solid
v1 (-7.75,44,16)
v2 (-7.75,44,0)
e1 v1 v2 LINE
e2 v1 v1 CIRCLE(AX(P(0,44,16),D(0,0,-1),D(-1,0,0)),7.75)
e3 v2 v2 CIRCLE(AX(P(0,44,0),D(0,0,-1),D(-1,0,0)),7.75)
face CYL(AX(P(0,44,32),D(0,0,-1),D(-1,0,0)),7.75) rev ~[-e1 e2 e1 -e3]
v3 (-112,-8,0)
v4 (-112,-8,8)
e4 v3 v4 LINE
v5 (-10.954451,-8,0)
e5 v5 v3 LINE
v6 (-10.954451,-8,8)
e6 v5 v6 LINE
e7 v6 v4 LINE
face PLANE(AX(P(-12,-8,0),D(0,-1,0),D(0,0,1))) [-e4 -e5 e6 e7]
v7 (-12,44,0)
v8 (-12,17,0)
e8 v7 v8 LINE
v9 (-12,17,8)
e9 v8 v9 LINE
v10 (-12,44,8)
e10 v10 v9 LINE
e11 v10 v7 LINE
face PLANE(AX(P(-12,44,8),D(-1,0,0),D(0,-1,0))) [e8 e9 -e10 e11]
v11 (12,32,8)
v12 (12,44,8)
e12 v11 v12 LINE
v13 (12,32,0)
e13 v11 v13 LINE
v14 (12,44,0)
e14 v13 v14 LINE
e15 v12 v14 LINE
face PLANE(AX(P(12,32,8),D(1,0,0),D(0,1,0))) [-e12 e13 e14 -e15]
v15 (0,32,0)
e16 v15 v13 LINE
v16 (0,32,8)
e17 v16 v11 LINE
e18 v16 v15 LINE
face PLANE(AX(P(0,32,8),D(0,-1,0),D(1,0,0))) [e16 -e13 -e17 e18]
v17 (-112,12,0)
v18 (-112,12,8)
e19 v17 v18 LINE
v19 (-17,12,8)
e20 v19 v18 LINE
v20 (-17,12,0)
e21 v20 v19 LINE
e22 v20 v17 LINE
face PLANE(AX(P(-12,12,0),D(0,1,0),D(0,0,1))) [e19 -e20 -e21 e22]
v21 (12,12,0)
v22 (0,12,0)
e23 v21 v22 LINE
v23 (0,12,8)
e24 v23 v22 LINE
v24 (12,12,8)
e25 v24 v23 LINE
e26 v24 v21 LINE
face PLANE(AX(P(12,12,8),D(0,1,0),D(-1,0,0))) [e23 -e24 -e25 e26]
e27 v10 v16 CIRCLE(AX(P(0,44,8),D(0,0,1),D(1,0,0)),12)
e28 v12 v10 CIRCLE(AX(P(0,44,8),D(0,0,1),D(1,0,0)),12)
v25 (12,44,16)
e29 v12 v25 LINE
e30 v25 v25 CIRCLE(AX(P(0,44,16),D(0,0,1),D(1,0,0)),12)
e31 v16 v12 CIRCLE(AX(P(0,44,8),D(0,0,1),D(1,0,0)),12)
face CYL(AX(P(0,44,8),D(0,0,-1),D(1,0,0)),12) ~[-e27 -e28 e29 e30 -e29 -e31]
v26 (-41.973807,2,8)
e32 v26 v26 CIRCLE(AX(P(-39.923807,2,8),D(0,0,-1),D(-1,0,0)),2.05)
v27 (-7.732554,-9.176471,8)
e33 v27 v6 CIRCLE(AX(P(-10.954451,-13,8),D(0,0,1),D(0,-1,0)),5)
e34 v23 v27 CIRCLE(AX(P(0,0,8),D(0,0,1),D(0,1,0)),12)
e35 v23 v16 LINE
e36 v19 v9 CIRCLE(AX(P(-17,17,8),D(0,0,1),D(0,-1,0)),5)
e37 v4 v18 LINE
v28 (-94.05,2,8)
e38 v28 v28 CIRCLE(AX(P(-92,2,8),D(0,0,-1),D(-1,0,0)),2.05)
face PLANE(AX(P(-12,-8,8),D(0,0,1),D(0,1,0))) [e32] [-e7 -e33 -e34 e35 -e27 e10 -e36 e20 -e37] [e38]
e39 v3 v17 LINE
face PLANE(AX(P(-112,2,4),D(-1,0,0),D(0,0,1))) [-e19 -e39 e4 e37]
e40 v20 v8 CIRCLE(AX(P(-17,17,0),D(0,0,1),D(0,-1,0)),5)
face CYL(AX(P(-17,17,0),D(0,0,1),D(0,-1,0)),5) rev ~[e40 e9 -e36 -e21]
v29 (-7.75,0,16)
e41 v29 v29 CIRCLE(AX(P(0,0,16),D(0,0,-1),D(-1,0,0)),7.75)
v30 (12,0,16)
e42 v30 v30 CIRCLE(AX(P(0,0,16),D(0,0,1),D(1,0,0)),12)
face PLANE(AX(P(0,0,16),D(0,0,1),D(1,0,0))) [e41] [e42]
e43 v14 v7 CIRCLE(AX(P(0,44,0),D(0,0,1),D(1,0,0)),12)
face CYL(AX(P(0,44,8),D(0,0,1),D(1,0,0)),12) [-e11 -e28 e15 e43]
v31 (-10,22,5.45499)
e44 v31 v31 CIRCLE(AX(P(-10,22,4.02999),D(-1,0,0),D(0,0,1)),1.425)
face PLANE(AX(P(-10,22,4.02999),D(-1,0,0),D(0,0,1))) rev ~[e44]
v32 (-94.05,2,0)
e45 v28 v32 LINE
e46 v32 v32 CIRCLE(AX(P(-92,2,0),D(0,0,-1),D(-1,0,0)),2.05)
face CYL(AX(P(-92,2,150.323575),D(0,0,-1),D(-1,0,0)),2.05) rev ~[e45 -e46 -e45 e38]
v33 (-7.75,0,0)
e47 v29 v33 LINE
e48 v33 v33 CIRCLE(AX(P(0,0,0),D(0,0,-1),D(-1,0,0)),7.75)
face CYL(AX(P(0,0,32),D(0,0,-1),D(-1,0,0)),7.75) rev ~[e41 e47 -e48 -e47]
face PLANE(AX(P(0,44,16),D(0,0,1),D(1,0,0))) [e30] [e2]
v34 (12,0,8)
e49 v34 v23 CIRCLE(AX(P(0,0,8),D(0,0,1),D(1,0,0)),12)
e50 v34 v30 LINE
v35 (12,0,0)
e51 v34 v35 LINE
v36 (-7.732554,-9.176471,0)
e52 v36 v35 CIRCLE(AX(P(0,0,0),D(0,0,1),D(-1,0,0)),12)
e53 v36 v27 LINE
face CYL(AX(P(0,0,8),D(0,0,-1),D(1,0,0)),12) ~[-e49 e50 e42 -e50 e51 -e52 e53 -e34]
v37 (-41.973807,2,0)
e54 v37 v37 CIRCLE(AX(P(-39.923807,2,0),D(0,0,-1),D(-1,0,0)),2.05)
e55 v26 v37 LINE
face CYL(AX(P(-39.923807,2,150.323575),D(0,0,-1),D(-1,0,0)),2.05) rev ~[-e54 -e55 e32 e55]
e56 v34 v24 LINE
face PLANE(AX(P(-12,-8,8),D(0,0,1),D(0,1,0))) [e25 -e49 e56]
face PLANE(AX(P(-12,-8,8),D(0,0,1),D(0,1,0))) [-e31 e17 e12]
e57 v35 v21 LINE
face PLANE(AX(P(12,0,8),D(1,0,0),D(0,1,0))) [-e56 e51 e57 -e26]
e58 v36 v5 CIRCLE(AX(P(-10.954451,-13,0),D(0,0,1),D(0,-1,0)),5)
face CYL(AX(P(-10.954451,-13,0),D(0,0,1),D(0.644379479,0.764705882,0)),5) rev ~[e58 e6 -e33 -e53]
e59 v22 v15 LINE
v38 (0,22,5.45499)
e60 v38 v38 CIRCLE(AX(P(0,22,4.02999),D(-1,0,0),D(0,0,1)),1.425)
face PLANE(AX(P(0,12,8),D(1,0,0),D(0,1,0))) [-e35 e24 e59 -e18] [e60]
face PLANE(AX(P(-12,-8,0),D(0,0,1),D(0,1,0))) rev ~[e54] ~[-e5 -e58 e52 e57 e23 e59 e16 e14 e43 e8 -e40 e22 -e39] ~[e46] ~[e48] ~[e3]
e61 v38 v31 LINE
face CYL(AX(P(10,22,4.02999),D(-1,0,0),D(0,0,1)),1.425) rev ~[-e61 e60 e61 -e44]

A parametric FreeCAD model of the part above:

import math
import FreeCAD as App
import Part
import Sketcher

V = App.Vector


def edges_at(feature, points):
    """Names of the edges that pass closest to the given points."""
    edges = feature.Shape.Edges
    near = lambda p: min(range(len(edges)), key=lambda i: edges[i].distToShape(Part.Vertex(*p))[0])
    return sorted({f"Edge{near(p) + 1}" for p in points})

doc = App.newDocument("Part")
body = doc.addObject("PartDesign::Body", "Body")

# Sketch on XY plane
sketch1 = body.newObject("Sketcher::SketchObject", "Sketch")
sketch1.AttachmentSupport = (doc.getObject("XY_Plane"), [""])
sketch1.MapMode = "FlatFace"
sketch1.AttachmentOffset = App.Placement(V(0, 0, 8), App.Rotation())
sketch1.addGeometry(Part.LineSegment(V(-12, 44, 0), V(-12, 0, 0)), False)
sketch1.addGeometry(Part.ArcOfCircle(Part.Circle(V(0, 0, 0), V(0, 0, 1), 12), math.radians(180), math.radians(360)), False)
sketch1.addGeometry(Part.LineSegment(V(12, 0, 0), V(12, 12, 0)), False)
sketch1.addGeometry(Part.LineSegment(V(12, 12, 0), V(0, 12, 0)), False)
sketch1.addGeometry(Part.LineSegment(V(0, 12, 0), V(0, 32, 0)), False)
sketch1.addGeometry(Part.LineSegment(V(0, 32, 0), V(12, 32, 0)), False)
sketch1.addGeometry(Part.LineSegment(V(12, 32, 0), V(12, 44, 0)), False)
sketch1.addGeometry(Part.ArcOfCircle(Part.Circle(V(0, 44, 0), V(0, 0, 1), 12), math.radians(0), math.radians(180)), False)
sketch1.addConstraint(Sketcher.Constraint("Tangent", 0, 2, 1, 1))
sketch1.addConstraint(Sketcher.Constraint("Tangent", 1, 2, 2, 1))
sketch1.addConstraint(Sketcher.Constraint("Coincident", 2, 2, 3, 1))
sketch1.addConstraint(Sketcher.Constraint("Coincident", 3, 2, 4, 1))
sketch1.addConstraint(Sketcher.Constraint("Coincident", 4, 2, 5, 1))
sketch1.addConstraint(Sketcher.Constraint("Coincident", 5, 2, 6, 1))
sketch1.addConstraint(Sketcher.Constraint("Tangent", 6, 2, 7, 1))
sketch1.addConstraint(Sketcher.Constraint("Tangent", 7, 2, 0, 1))
sketch1.addConstraint(Sketcher.Constraint("Vertical", 0))
sketch1.addConstraint(Sketcher.Constraint("Vertical", 2))
sketch1.addConstraint(Sketcher.Constraint("Horizontal", 3))
sketch1.addConstraint(Sketcher.Constraint("Vertical", 4))
sketch1.addConstraint(Sketcher.Constraint("Horizontal", 5))
sketch1.addConstraint(Sketcher.Constraint("Vertical", 6))
sketch1.addConstraint(Sketcher.Constraint("Coincident", 1, 3, -1, 1))
sketch1.addConstraint(Sketcher.Constraint("Equal", 1, 7))
sketch1.addConstraint(Sketcher.Constraint("PointOnObject", 3, 2, -2))
sketch1.addConstraint(Sketcher.Constraint("Equal", 5, 2))
sketch1.addConstraint(Sketcher.Constraint("Equal", 2, 6))
sketch1.addConstraint(Sketcher.Constraint("Radius", 1, 12.0))
sketch1.addConstraint(Sketcher.Constraint("DistanceY", 0, 2, 0, 1, 44.0))
pad1 = body.newObject("PartDesign::Pad", "Pad")
pad1.Profile = sketch1
pad1.Length = 8
pad1.Reversed = True

# Sketch on YZ plane
sketch2 = body.newObject("Sketcher::SketchObject", "Sketch001")
sketch2.AttachmentSupport = (doc.getObject("YZ_Plane"), [""])
sketch2.MapMode = "FlatFace"
sketch2.AttachmentOffset = App.Placement(V(0, 0, -12), App.Rotation())
sketch2.addGeometry(Part.LineSegment(V(12, 0, 0), V(-8, 0, 0)), False)
sketch2.addGeometry(Part.LineSegment(V(-8, 0, 0), V(-8, 8, 0)), False)
sketch2.addGeometry(Part.LineSegment(V(-8, 8, 0), V(12, 8, 0)), False)
sketch2.addGeometry(Part.LineSegment(V(12, 8, 0), V(12, 0, 0)), False)
sketch2.addConstraint(Sketcher.Constraint("Coincident", 0, 2, 1, 1))
sketch2.addConstraint(Sketcher.Constraint("Coincident", 1, 2, 2, 1))
sketch2.addConstraint(Sketcher.Constraint("Coincident", 2, 2, 3, 1))
sketch2.addConstraint(Sketcher.Constraint("Coincident", 3, 2, 0, 1))
sketch2.addConstraint(Sketcher.Constraint("Horizontal", 0))
sketch2.addConstraint(Sketcher.Constraint("Vertical", 1))
sketch2.addConstraint(Sketcher.Constraint("Horizontal", 2))
sketch2.addConstraint(Sketcher.Constraint("Vertical", 3))
sketch2.addConstraint(Sketcher.Constraint("PointOnObject", 0, 2, -1))
sketch2.addConstraint(Sketcher.Constraint("DistanceX", 0, 2, 0, 1, 20.0))
sketch2.addConstraint(Sketcher.Constraint("DistanceY", 1, 1, 1, 2, 8.0))
sketch2.addConstraint(Sketcher.Constraint("DistanceX", 0, 2, -1, 1, 8.0))
pad2 = body.newObject("PartDesign::Pad", "Pad001")
pad2.Profile = sketch2
pad2.Type = "TwoLengths"
pad2.Length = 100
pad2.Length2 = 5
pad2.Reversed = True

# Sketch on XY plane
sketch3 = body.newObject("Sketcher::SketchObject", "Sketch002")
sketch3.AttachmentSupport = (doc.getObject("XY_Plane"), [""])
sketch3.MapMode = "FlatFace"
sketch3.AttachmentOffset = App.Placement(V(0, 0, 8), App.Rotation())
sketch3.addGeometry(Part.Circle(V(0, 44, 0), V(0, 0, 1), 12), False)
sketch3.addConstraint(Sketcher.Constraint("PointOnObject", 0, 3, -2))
sketch3.addConstraint(Sketcher.Constraint("Diameter", 0, 24.0))
sketch3.addConstraint(Sketcher.Constraint("DistanceY", -1, 1, 0, 3, 44.0))
pad3 = body.newObject("PartDesign::Pad", "Pad002")
pad3.Profile = sketch3
pad3.Length = 8

# Sketch on XY plane
sketch4 = body.newObject("Sketcher::SketchObject", "Sketch003")
sketch4.AttachmentSupport = (doc.getObject("XY_Plane"), [""])
sketch4.MapMode = "FlatFace"
sketch4.AttachmentOffset = App.Placement(V(0, 0, 8), App.Rotation())
sketch4.addGeometry(Part.Circle(V(0, 0, 0), V(0, 0, 1), 12), False)
sketch4.addConstraint(Sketcher.Constraint("Coincident", 0, 3, -1, 1))
sketch4.addConstraint(Sketcher.Constraint("Diameter", 0, 24.0))
pad4 = body.newObject("PartDesign::Pad", "Pad003")
pad4.Profile = sketch4
pad4.Length = 8

# Sketch on XY plane
sketch5 = body.newObject("Sketcher::SketchObject", "Sketch004")
sketch5.AttachmentSupport = (doc.getObject("XY_Plane"), [""])
sketch5.MapMode = "FlatFace"
sketch5.AttachmentOffset = App.Placement(V(0, 0, 8), App.Rotation())
sketch5.addGeometry(Part.Circle(V(-39.9, 2, 0), V(0, 0, 1), 2), False)
sketch5.addGeometry(Part.Circle(V(-92, 2, 0), V(0, 0, 1), 2), False)
sketch5.addConstraint(Sketcher.Constraint("Equal", 0, 1))
sketch5.addConstraint(Sketcher.Constraint("Horizontal", 0, 3, 1, 3))
sketch5.addConstraint(Sketcher.Constraint("Diameter", 0, 4.1))
sketch5.addConstraint(Sketcher.Constraint("DistanceY", -1, 1, 0, 3, 2.0))
sketch5.addConstraint(Sketcher.Constraint("DistanceX", 1, 3, -1, 1, 92.0))
sketch5.addConstraint(Sketcher.Constraint("DistanceX", 0, 3, -1, 1, 39.923807))
doc.recompute()
hole = body.newObject("PartDesign::Hole", "Hole")
hole.Profile = sketch5
hole.ThreadType = "None"
hole.Diameter = 4.1
hole.DepthType = "ThroughAll"

# Sketch on XY plane
sketch6 = body.newObject("Sketcher::SketchObject", "Sketch005")
sketch6.AttachmentSupport = (doc.getObject("XY_Plane"), [""])
sketch6.MapMode = "FlatFace"
sketch6.AttachmentOffset = App.Placement(V(0, 0, 16), App.Rotation())
sketch6.addGeometry(Part.Circle(V(0, 44, 0), V(0, 0, 1), 8), False)
sketch6.addGeometry(Part.Circle(V(0, 0, 0), V(0, 0, 1), 8), False)
sketch6.addConstraint(Sketcher.Constraint("Coincident", 1, 3, -1, 1))
sketch6.addConstraint(Sketcher.Constraint("Equal", 0, 1))
sketch6.addConstraint(Sketcher.Constraint("PointOnObject", 0, 3, -2))
sketch6.addConstraint(Sketcher.Constraint("Diameter", 0, 15.5))
sketch6.addConstraint(Sketcher.Constraint("DistanceY", -1, 1, 0, 3, 44.0))
doc.recompute()
hole2 = body.newObject("PartDesign::Hole", "Hole001")
hole2.Profile = sketch6
hole2.ThreadType = "None"
hole2.Diameter = 15.5
hole2.DepthType = "Dimension"
hole2.Depth = 16
hole2.DrillPoint = "Flat"

# Sketch on YZ plane
sketch7 = body.newObject("Sketcher::SketchObject", "Sketch006")
sketch7.AttachmentSupport = (doc.getObject("YZ_Plane"), [""])
sketch7.MapMode = "FlatFace"
sketch7.addGeometry(Part.Circle(V(22, 4, 0), V(0, 0, 1), 1.4), False)
sketch7.addConstraint(Sketcher.Constraint("Diameter", 0, 2.85))
sketch7.addConstraint(Sketcher.Constraint("DistanceX", -1, 1, 0, 3, 22.0))
sketch7.addConstraint(Sketcher.Constraint("DistanceY", -1, 1, 0, 3, 4.02999))
doc.recompute()
hole3 = body.newObject("PartDesign::Hole", "Hole002")
hole3.Profile = sketch7
hole3.ThreadType = "None"
hole3.Diameter = 2.85
hole3.DepthType = "Dimension"
hole3.Depth = 10
hole3.DrillPoint = "Flat"
doc.recompute()

fillet = body.newObject("PartDesign::Fillet", "Fillet")
fillet.Base = (hole3, edges_at(hole3, [(-12, 12, 4), (-8.944, -8, 4)]))
fillet.Radius = 5

doc.recompute()
